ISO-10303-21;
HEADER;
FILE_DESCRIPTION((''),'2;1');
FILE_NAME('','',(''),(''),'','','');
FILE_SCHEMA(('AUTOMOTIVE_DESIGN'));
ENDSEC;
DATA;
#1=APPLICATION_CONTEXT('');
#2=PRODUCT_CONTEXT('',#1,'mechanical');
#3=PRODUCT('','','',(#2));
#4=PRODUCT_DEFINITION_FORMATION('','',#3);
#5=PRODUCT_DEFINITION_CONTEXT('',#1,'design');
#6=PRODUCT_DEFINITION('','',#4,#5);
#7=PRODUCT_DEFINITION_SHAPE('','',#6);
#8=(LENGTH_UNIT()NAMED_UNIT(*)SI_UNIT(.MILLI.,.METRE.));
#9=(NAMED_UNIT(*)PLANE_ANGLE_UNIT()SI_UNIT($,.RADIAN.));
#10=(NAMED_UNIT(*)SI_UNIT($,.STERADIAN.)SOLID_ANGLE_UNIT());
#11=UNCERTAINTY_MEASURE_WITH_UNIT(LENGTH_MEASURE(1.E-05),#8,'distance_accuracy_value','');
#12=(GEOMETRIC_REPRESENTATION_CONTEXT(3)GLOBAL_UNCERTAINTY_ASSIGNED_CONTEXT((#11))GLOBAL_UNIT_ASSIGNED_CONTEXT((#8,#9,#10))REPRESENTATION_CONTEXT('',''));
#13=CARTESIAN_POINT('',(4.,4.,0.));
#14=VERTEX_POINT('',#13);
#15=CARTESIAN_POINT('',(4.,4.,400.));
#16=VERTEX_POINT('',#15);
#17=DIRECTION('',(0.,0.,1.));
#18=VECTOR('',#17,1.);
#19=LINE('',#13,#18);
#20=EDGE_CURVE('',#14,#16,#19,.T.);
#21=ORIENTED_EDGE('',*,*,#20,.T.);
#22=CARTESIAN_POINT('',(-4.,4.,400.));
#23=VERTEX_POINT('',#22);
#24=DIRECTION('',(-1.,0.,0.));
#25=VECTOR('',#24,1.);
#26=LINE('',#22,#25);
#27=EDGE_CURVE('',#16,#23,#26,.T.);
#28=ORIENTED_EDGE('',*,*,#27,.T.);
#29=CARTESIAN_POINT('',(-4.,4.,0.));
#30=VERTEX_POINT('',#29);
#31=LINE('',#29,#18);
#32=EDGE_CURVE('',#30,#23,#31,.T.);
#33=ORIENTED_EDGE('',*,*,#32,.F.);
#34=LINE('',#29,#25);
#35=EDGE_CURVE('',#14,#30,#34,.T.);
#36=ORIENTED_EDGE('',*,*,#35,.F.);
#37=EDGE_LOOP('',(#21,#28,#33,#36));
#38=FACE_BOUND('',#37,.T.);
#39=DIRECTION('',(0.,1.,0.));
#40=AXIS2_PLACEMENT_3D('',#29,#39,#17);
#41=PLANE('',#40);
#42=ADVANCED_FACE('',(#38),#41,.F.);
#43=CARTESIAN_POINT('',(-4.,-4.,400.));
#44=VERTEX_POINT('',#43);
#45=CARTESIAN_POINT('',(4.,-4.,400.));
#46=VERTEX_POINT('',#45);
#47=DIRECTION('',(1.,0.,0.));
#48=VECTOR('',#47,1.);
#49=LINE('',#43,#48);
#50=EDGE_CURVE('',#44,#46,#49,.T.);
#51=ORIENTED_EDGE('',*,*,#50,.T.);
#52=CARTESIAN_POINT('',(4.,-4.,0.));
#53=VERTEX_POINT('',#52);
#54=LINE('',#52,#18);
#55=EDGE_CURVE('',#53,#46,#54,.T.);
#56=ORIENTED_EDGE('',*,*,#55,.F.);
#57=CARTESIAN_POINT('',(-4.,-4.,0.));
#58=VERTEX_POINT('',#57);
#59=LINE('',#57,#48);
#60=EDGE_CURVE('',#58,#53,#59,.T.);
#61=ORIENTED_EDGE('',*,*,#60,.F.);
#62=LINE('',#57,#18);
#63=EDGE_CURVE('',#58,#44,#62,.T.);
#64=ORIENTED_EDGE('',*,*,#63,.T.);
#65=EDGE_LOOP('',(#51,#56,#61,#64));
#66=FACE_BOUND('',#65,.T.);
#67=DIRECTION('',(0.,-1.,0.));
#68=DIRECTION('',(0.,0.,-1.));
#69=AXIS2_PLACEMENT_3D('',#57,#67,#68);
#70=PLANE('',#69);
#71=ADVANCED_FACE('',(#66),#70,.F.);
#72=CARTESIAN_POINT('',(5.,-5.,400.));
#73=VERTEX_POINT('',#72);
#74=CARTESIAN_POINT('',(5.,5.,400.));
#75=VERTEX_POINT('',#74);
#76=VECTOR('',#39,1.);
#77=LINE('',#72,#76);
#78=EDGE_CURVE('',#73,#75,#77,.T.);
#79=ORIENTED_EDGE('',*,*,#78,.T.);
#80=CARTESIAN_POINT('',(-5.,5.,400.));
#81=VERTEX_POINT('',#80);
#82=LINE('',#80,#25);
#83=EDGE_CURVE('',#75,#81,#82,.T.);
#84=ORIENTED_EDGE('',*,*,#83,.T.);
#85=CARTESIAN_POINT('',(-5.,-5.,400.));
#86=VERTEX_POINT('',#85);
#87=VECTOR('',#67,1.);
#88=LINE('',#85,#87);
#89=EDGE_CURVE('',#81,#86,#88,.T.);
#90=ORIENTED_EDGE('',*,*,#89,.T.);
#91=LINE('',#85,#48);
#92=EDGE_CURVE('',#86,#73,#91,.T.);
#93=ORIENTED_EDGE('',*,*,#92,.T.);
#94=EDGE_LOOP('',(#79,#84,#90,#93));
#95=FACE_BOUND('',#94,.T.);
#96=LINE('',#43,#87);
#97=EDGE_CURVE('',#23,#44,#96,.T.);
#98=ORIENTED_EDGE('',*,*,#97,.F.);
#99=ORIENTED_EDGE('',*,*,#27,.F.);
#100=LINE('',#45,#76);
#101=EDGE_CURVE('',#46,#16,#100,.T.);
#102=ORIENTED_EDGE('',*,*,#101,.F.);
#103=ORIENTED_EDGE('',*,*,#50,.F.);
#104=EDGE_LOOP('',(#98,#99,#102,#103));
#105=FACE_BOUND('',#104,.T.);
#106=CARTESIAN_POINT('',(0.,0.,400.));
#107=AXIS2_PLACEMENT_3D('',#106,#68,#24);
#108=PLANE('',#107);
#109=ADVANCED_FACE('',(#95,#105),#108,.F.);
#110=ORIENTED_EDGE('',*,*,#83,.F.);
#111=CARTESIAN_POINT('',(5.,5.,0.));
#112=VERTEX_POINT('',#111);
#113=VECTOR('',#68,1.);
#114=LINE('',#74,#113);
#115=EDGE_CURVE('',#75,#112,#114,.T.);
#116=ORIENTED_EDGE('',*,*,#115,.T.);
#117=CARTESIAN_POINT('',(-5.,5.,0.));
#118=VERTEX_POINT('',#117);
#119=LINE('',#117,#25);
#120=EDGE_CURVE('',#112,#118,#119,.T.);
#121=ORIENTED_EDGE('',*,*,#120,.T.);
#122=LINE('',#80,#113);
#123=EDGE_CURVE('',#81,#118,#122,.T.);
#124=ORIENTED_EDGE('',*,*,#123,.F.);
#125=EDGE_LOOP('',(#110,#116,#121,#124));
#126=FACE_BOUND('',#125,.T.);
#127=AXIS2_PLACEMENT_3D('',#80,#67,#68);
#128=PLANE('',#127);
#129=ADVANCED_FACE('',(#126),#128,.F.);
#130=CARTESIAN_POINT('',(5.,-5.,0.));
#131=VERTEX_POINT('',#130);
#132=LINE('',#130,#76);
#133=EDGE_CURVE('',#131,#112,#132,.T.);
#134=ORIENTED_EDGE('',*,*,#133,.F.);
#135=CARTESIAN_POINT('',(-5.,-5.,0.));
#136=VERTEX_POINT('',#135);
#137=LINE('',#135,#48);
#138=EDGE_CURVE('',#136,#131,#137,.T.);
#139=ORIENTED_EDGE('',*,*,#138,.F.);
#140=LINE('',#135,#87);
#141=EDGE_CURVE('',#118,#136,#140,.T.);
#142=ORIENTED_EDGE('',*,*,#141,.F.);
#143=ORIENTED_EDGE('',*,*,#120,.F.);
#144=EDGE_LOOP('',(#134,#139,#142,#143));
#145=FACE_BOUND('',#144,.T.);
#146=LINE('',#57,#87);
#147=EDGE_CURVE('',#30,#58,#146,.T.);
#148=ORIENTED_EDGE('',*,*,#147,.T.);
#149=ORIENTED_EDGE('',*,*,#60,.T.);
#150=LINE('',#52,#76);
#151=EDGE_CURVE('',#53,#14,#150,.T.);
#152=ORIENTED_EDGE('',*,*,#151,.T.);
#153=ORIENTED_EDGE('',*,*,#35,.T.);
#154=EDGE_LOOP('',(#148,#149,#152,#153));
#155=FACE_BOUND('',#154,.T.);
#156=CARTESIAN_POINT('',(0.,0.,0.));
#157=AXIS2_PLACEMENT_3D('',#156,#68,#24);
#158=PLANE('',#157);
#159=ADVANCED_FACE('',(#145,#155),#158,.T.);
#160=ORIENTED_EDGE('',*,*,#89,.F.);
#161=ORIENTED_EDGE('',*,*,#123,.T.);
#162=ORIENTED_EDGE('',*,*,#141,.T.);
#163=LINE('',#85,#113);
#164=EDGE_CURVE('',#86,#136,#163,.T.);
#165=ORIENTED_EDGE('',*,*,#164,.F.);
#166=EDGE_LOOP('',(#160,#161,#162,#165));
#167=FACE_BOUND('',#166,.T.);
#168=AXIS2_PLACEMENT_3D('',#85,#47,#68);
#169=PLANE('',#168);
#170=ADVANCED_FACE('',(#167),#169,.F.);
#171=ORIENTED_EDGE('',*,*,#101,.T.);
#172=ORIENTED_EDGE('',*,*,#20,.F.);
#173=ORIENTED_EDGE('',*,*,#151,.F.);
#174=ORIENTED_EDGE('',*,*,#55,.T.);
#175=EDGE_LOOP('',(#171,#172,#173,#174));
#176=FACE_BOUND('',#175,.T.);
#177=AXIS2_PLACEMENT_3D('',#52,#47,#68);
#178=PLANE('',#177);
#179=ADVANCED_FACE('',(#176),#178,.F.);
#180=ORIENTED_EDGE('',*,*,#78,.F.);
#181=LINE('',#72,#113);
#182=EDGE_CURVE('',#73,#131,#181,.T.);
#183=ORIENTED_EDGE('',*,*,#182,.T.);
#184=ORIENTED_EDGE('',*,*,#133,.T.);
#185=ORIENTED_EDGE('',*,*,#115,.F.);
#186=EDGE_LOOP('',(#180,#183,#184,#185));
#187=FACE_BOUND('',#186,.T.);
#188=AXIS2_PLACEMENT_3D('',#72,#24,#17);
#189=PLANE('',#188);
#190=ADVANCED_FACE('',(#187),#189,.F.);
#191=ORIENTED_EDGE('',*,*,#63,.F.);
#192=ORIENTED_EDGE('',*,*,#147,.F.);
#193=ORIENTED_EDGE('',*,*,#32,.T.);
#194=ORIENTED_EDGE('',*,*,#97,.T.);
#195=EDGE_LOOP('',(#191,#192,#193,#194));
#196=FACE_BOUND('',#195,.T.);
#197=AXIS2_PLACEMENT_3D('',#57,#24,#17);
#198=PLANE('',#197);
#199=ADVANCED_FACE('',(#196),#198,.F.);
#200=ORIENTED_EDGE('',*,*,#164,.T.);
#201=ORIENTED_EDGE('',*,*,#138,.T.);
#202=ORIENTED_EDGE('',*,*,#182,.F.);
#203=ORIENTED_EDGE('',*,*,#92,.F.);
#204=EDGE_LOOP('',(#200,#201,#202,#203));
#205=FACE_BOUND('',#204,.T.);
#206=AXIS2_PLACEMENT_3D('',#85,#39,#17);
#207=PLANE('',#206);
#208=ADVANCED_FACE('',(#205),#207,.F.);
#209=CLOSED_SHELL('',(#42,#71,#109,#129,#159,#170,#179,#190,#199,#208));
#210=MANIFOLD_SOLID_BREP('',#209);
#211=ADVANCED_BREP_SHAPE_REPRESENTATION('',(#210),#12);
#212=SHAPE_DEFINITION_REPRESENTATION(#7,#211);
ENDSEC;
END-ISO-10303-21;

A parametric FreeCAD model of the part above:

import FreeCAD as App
import Part
import Sketcher

V = App.Vector


def add_polygon(sketch, points):
    """Adds a closed chain of lines whose ends are joined by coincident constraints."""
    first, n = sketch.GeometryCount, len(points)
    for a, b in zip(points, points[1:] + points[:1]):
        sketch.addGeometry(Part.LineSegment(App.Vector(*a, 0), App.Vector(*b, 0)), False)
    for i in range(n):
        sketch.addConstraint(Sketcher.Constraint("Coincident", first + i, 2, first + (i + 1) % n, 1))

doc = App.newDocument("Part")
body = doc.addObject("PartDesign::Body", "Body")

# Sketch on XY plane
sketch1 = body.newObject("Sketcher::SketchObject", "Sketch")
sketch1.AttachmentSupport = (doc.getObject("XY_Plane"), [""])
sketch1.MapMode = "FlatFace"
add_polygon(sketch1, [(-5, 5), (-5, -5), (5, -5), (5, 5)])  # lines 0-3
sketch1.addConstraint([
    Sketcher.Constraint("Vertical", 0),
    Sketcher.Constraint("Horizontal", 1),
    Sketcher.Constraint("Vertical", 2),
    Sketcher.Constraint("Horizontal", 3),
    Sketcher.Constraint("Symmetric", 0, 2, 2, 2, -1, 1),
    Sketcher.Constraint("Equal", 3, 0),
    Sketcher.Constraint("DistanceX", 1, 1, 1, 2, 10.0),
])
pad1 = body.newObject("PartDesign::Pad", "Pad")
pad1.Profile = sketch1
pad1.Length = 400

# Sketch on XY plane
sketch2 = body.newObject("Sketcher::SketchObject", "Sketch001")
sketch2.AttachmentSupport = (doc.getObject("XY_Plane"), [""])
sketch2.MapMode = "FlatFace"
sketch2.AttachmentOffset = App.Placement(V(0, 0, 400), App.Rotation())
add_polygon(sketch2, [(-4, 4), (-4, -4), (4, -4), (4, 4)])  # lines 0-3
sketch2.addConstraint([
    Sketcher.Constraint("Vertical", 0),
    Sketcher.Constraint("Horizontal", 1),
    Sketcher.Constraint("Vertical", 2),
    Sketcher.Constraint("Horizontal", 3),
    Sketcher.Constraint("Symmetric", 0, 2, 2, 2, -1, 1),
    Sketcher.Constraint("Equal", 3, 0),
    Sketcher.Constraint("DistanceX", 1, 1, 1, 2, 8.0),
])
pocket1 = body.newObject("PartDesign::Pocket", "Pocket")
pocket1.Profile = sketch2
pocket1.Length = 400

doc.recompute()
